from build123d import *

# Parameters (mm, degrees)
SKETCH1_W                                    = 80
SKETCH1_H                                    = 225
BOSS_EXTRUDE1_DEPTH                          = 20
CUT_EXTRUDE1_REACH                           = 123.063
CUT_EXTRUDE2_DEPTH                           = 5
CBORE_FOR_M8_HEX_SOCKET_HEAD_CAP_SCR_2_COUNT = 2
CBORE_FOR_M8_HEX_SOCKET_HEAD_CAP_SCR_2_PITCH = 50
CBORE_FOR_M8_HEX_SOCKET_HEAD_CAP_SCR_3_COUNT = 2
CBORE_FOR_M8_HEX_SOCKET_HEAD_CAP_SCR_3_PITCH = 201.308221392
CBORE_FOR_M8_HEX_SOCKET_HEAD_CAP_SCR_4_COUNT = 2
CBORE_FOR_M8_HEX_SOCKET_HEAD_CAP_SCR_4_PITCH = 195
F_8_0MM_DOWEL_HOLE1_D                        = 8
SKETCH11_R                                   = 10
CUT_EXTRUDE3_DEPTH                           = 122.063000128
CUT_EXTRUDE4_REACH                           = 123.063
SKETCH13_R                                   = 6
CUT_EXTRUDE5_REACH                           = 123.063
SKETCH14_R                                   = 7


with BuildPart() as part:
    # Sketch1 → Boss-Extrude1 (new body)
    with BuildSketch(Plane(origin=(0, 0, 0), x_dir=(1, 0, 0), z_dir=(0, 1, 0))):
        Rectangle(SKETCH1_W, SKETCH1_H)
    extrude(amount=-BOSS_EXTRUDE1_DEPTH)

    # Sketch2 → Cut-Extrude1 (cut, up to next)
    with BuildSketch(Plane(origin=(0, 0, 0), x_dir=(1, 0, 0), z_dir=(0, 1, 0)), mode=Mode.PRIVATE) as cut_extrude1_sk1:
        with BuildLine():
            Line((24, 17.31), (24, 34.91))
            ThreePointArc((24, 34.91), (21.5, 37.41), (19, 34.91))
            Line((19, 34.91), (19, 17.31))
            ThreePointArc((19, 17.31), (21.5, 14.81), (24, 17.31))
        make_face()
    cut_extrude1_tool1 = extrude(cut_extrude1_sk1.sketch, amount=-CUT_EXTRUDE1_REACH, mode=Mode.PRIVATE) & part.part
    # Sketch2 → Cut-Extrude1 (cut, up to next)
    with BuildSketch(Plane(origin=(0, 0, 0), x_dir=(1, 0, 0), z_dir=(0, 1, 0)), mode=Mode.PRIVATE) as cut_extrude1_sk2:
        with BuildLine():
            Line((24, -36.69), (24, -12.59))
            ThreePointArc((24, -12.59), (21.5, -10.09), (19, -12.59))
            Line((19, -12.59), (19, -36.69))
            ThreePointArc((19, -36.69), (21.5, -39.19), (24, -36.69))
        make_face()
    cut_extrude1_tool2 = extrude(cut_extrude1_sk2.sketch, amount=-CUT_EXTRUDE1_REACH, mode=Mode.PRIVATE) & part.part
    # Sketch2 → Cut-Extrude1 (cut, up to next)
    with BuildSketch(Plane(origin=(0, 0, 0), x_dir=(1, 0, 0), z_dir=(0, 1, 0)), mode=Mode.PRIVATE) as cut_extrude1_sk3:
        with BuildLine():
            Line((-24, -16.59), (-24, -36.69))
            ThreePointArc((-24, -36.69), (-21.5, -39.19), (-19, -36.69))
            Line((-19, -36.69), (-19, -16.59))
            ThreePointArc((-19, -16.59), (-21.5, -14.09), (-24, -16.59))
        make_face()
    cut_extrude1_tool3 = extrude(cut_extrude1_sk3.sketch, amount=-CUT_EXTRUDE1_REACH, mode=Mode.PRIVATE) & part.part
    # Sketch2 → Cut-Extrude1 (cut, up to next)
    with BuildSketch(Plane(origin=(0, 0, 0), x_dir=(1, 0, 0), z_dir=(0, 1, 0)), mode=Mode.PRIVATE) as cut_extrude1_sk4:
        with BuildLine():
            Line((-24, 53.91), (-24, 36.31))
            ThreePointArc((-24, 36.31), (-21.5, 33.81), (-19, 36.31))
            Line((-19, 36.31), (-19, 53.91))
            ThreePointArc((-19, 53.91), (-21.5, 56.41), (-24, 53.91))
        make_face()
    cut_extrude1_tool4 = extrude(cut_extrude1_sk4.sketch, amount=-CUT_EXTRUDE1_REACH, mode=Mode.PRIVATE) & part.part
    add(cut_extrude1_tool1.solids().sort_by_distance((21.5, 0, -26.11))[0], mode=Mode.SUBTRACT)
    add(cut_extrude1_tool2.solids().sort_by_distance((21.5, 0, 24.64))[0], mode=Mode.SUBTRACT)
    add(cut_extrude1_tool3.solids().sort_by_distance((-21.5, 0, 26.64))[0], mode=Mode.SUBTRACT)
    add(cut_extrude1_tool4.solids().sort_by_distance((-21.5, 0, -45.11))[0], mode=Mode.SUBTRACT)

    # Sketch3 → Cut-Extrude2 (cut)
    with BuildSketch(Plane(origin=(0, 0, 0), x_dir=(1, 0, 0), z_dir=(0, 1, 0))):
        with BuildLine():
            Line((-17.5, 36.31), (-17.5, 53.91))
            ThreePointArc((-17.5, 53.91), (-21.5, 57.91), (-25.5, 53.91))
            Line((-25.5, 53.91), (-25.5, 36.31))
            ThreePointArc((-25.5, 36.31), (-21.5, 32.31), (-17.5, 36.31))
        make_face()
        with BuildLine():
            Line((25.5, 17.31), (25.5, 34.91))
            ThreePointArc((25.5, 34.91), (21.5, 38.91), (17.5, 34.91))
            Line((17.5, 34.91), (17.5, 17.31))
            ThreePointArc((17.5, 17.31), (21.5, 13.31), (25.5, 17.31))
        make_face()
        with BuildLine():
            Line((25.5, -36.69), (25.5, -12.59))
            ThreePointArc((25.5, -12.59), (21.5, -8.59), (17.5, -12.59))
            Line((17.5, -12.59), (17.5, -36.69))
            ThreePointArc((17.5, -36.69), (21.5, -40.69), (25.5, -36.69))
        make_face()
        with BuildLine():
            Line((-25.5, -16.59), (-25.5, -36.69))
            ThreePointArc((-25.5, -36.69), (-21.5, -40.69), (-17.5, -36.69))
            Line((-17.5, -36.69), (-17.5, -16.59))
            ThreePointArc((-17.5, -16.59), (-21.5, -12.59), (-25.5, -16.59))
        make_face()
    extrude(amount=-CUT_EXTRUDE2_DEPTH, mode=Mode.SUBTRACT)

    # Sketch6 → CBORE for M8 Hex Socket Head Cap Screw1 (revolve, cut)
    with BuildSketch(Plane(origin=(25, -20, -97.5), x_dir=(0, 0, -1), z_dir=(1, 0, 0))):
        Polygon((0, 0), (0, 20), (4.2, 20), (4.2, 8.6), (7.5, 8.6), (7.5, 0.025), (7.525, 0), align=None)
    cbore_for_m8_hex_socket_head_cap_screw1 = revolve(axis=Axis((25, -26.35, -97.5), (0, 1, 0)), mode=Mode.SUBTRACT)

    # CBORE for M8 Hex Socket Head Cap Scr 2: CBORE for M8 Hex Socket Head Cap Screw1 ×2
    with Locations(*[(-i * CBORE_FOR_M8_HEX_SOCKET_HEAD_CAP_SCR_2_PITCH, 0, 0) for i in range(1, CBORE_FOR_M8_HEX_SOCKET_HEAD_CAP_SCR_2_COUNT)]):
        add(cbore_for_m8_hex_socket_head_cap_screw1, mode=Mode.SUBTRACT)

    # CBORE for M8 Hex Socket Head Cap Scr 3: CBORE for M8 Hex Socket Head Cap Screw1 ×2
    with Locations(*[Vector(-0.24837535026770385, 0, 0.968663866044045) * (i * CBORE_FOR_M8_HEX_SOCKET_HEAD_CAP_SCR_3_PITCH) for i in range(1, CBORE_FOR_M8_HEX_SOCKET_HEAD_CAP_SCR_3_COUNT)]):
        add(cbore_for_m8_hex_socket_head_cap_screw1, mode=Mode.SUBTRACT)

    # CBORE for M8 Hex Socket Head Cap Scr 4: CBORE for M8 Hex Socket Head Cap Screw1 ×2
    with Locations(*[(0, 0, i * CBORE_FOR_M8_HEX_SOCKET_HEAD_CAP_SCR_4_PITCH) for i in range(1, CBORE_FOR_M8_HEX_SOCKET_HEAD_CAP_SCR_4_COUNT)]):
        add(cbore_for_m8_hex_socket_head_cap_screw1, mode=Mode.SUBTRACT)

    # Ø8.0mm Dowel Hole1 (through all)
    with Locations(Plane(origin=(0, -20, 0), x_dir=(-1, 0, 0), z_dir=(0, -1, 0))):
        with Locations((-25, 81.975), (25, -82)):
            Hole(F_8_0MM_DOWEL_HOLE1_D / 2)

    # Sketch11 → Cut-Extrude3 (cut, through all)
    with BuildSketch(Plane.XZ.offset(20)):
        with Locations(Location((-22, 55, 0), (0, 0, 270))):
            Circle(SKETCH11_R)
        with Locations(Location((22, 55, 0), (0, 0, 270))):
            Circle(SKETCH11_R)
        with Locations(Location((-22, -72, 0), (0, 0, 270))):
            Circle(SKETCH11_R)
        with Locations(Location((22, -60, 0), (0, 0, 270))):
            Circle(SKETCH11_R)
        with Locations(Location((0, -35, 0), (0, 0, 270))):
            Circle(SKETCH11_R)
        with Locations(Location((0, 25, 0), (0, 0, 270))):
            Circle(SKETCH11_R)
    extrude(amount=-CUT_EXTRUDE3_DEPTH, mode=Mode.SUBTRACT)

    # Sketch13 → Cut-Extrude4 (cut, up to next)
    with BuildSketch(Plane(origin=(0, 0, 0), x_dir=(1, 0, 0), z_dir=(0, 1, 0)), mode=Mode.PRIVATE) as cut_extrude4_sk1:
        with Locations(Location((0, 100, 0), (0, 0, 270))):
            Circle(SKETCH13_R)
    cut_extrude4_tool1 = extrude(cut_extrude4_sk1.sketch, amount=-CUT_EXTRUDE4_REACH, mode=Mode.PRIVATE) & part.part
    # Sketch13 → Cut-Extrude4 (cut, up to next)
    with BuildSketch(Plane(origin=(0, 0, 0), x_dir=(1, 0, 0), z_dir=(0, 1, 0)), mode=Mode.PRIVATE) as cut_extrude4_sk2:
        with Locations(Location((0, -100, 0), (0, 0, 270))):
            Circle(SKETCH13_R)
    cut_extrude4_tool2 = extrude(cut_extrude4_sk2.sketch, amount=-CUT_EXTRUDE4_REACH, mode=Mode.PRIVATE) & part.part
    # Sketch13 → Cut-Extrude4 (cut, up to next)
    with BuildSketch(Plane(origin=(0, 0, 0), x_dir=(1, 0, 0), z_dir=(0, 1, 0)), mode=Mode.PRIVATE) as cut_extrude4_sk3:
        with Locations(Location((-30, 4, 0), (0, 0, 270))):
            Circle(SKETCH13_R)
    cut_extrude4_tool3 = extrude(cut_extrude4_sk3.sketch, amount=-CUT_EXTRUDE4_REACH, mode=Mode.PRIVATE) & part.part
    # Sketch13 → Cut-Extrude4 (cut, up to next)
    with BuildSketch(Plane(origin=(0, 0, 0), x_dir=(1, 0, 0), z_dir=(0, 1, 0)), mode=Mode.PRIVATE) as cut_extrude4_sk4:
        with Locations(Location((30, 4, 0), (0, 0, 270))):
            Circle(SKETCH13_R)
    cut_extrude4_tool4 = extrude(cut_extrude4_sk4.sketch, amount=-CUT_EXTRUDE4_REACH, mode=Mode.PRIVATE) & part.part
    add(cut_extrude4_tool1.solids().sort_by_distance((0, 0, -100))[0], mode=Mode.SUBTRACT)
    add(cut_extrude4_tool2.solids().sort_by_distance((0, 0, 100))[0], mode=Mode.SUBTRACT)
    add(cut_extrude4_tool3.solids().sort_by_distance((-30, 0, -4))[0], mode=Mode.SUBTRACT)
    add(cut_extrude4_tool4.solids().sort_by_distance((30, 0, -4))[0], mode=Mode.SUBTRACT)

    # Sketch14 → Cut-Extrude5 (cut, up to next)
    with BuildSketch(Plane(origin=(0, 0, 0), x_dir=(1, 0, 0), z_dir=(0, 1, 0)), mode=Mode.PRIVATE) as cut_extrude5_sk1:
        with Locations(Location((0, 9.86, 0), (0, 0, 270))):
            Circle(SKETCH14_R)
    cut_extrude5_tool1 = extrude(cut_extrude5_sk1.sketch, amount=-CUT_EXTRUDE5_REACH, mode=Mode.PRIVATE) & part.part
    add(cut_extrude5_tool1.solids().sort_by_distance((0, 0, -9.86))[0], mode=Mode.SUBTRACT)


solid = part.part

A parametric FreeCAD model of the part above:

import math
import FreeCAD as App
import Part
import Sketcher
Q = App.Units.Quantity

doc = App.newDocument("Part")
body = doc.addObject("PartDesign::Body", "Body")

# Sketch on XZ plane
sketch1 = doc.addObject("Sketcher::SketchObject", "Sketch")
body.addObject(sketch1)
sketch1.AttachmentSupport = (doc.XZ_Plane, [""])
sketch1.MapMode = "FlatFace"
sketch1.addGeometry([
    Part.LineSegment(App.Vector(-40, -112.5, 0), App.Vector(-40, 112.5, 0)),
    Part.LineSegment(App.Vector(-40, 112.5, 0), App.Vector(40, 112.5, 0)),
    Part.LineSegment(App.Vector(40, 112.5, 0), App.Vector(40, -112.5, 0)),
    Part.LineSegment(App.Vector(40, -112.5, 0), App.Vector(-40, -112.5, 0)),
], False)
sketch1.addConstraint([
    Sketcher.Constraint("Coincident", 0, 2, 1, 1),
    Sketcher.Constraint("Coincident", 1, 2, 2, 1),
    Sketcher.Constraint("Coincident", 2, 2, 3, 1),
    Sketcher.Constraint("Coincident", 3, 2, 0, 1),
    Sketcher.Constraint("Vertical", 0),
    Sketcher.Constraint("Horizontal", 1),
    Sketcher.Constraint("Vertical", 2),
    Sketcher.Constraint("Horizontal", 3),
    Sketcher.Constraint("Symmetric", 0, 2, 2, 2, -1, 1),
    Sketcher.Constraint("DistanceX", 1, 1, 1, 2, Q("80 mm")),
    Sketcher.Constraint("DistanceY", 0, 1, 0, 2, Q("225 mm")),
])
pad1 = doc.addObject("PartDesign::Pad", "Pad")
body.addObject(pad1)
pad1.Profile = sketch1
pad1.Length = 20

# Sketch on XZ plane
sketch2 = doc.addObject("Sketcher::SketchObject", "Sketch001")
body.addObject(sketch2)
sketch2.AttachmentSupport = (doc.XZ_Plane, [""])
sketch2.MapMode = "FlatFace"
sketch2.addGeometry([
    Part.LineSegment(App.Vector(24, -17.31, 0), App.Vector(24, -34.91, 0)),
    Part.ArcOfCircle(Part.Circle(App.Vector(21.5, -34.91, 0), App.Vector(0, 0, 1), 2.5), math.radians(180), math.radians(360)),
    Part.LineSegment(App.Vector(19, -34.91, 0), App.Vector(19, -17.31, 0)),
    Part.ArcOfCircle(Part.Circle(App.Vector(21.5, -17.31, 0), App.Vector(0, 0, 1), 2.5), math.radians(0), math.radians(180)),
], False)
sketch2.addConstraint([
    Sketcher.Constraint("Tangent", 0, 2, 1, 2),
    Sketcher.Constraint("Tangent", 1, 1, 2, 1),
    Sketcher.Constraint("Tangent", 2, 2, 3, 2),
    Sketcher.Constraint("Tangent", 3, 1, 0, 1),
    Sketcher.Constraint("Vertical", 0),
    Sketcher.Constraint("Vertical", 2),
    Sketcher.Constraint("Radius", 1, Q("2.5 mm")),
    Sketcher.Constraint("DistanceY", 0, 2, 0, 1, Q("17.6 mm")),
    Sketcher.Constraint("DistanceX", -1, 1, 0, 2, Q("24 mm")),
    Sketcher.Constraint("DistanceY", 1, 3, -1, 1, Q("34.91 mm")),
])
pocket1 = doc.addObject("PartDesign::Pocket", "Pocket")
body.addObject(pocket1)
pocket1.Profile = sketch2
pocket1.Type = "UpToFirst"
pocket1.Reversed = True

# Sketch on XZ plane
sketch3 = doc.addObject("Sketcher::SketchObject", "Sketch002")
body.addObject(sketch3)
sketch3.AttachmentSupport = (doc.XZ_Plane, [""])
sketch3.MapMode = "FlatFace"
sketch3.addGeometry([
    Part.LineSegment(App.Vector(24, 36.69, 0), App.Vector(24, 12.59, 0)),
    Part.ArcOfCircle(Part.Circle(App.Vector(21.5, 12.59, 0), App.Vector(0, 0, 1), 2.5), math.radians(180), math.radians(360)),
    Part.LineSegment(App.Vector(19, 12.59, 0), App.Vector(19, 36.69, 0)),
    Part.ArcOfCircle(Part.Circle(App.Vector(21.5, 36.69, 0), App.Vector(0, 0, 1), 2.5), math.radians(0), math.radians(180)),
], False)
sketch3.addConstraint([
    Sketcher.Constraint("Tangent", 0, 2, 1, 2),
    Sketcher.Constraint("Tangent", 1, 1, 2, 1),
    Sketcher.Constraint("Tangent", 2, 2, 3, 2),
    Sketcher.Constraint("Tangent", 3, 1, 0, 1),
    Sketcher.Constraint("Vertical", 0),
    Sketcher.Constraint("Vertical", 2),
    Sketcher.Constraint("Radius", 1, Q("2.5 mm")),
    Sketcher.Constraint("DistanceY", 0, 2, 0, 1, Q("24.1 mm")),
    Sketcher.Constraint("DistanceX", -1, 1, 0, 2, Q("24 mm")),
    Sketcher.Constraint("DistanceY", -1, 1, 1, 3, Q("12.59 mm")),
])
pocket2 = doc.addObject("PartDesign::Pocket", "Pocket001")
body.addObject(pocket2)
pocket2.Profile = sketch3
pocket2.Type = "UpToFirst"
pocket2.Reversed = True

# Sketch on XZ plane
sketch4 = doc.addObject("Sketcher::SketchObject", "Sketch003")
body.addObject(sketch4)
sketch4.AttachmentSupport = (doc.XZ_Plane, [""])
sketch4.MapMode = "FlatFace"
sketch4.addGeometry([
    Part.LineSegment(App.Vector(-24, 16.59, 0), App.Vector(-24, 36.69, 0)),
    Part.ArcOfCircle(Part.Circle(App.Vector(-21.5, 36.69, 0), App.Vector(0, 0, 1), 2.5), math.radians(0), math.radians(180)),
    Part.LineSegment(App.Vector(-19, 36.69, 0), App.Vector(-19, 16.59, 0)),
    Part.ArcOfCircle(Part.Circle(App.Vector(-21.5, 16.59, 0), App.Vector(0, 0, 1), 2.5), math.radians(180), math.radians(360)),
], False)
sketch4.addConstraint([
    Sketcher.Constraint("Tangent", 0, 2, 1, 2),
    Sketcher.Constraint("Tangent", 1, 1, 2, 1),
    Sketcher.Constraint("Tangent", 2, 2, 3, 2),
    Sketcher.Constraint("Tangent", 3, 1, 0, 1),
    Sketcher.Constraint("Vertical", 0),
    Sketcher.Constraint("Vertical", 2),
    Sketcher.Constraint("Radius", 1, Q("2.5 mm")),
    Sketcher.Constraint("DistanceY", 0, 1, 0, 2, Q("20.1 mm")),
    Sketcher.Constraint("DistanceX", 0, 2, -1, 1, Q("24 mm")),
    Sketcher.Constraint("DistanceY", -1, 1, 1, 3, Q("36.69 mm")),
])
pocket3 = doc.addObject("PartDesign::Pocket", "Pocket002")
body.addObject(pocket3)
pocket3.Profile = sketch4
pocket3.Type = "UpToFirst"
pocket3.Reversed = True

# Sketch on XZ plane
sketch5 = doc.addObject("Sketcher::SketchObject", "Sketch004")
body.addObject(sketch5)
sketch5.AttachmentSupport = (doc.XZ_Plane, [""])
sketch5.MapMode = "FlatFace"
sketch5.addGeometry([
    Part.LineSegment(App.Vector(-24, -53.91, 0), App.Vector(-24, -36.31, 0)),
    Part.ArcOfCircle(Part.Circle(App.Vector(-21.5, -36.31, 0), App.Vector(0, 0, 1), 2.5), math.radians(0), math.radians(180)),
    Part.LineSegment(App.Vector(-19, -36.31, 0), App.Vector(-19, -53.91, 0)),
    Part.ArcOfCircle(Part.Circle(App.Vector(-21.5, -53.91, 0), App.Vector(0, 0, 1), 2.5), math.radians(180), math.radians(360)),
], False)
sketch5.addConstraint([
    Sketcher.Constraint("Tangent", 0, 2, 1, 2),
    Sketcher.Constraint("Tangent", 1, 1, 2, 1),
    Sketcher.Constraint("Tangent", 2, 2, 3, 2),
    Sketcher.Constraint("Tangent", 3, 1, 0, 1),
    Sketcher.Constraint("Vertical", 0),
    Sketcher.Constraint("Vertical", 2),
    Sketcher.Constraint("Radius", 1, Q("2.5 mm")),
    Sketcher.Constraint("DistanceY", 0, 1, 0, 2, Q("17.6 mm")),
    Sketcher.Constraint("DistanceX", 0, 2, -1, 1, Q("24 mm")),
    Sketcher.Constraint("DistanceY", 1, 3, -1, 1, Q("36.31 mm")),
])
pocket4 = doc.addObject("PartDesign::Pocket", "Pocket003")
body.addObject(pocket4)
pocket4.Profile = sketch5
pocket4.Type = "UpToFirst"
pocket4.Reversed = True

# Sketch on XZ plane
sketch6 = doc.addObject("Sketcher::SketchObject", "Sketch005")
body.addObject(sketch6)
sketch6.AttachmentSupport = (doc.XZ_Plane, [""])
sketch6.MapMode = "FlatFace"
sketch6.addGeometry([
    Part.LineSegment(App.Vector(-17.5, -36.31, 0), App.Vector(-17.5, -53.91, 0)),  # 0
    Part.ArcOfCircle(Part.Circle(App.Vector(-21.5, -53.91, 0), App.Vector(0, 0, 1), 4), math.radians(180), math.radians(360)),  # 1
    Part.LineSegment(App.Vector(-25.5, -53.91, 0), App.Vector(-25.5, -36.31, 0)),  # 2
    Part.ArcOfCircle(Part.Circle(App.Vector(-21.5, -36.31, 0), App.Vector(0, 0, 1), 4), math.radians(0), math.radians(180)),  # 3
    Part.LineSegment(App.Vector(25.5, -17.31, 0), App.Vector(25.5, -34.91, 0)),  # 4
    Part.ArcOfCircle(Part.Circle(App.Vector(21.5, -34.91, 0), App.Vector(0, 0, 1), 4), math.radians(180), math.radians(360)),  # 5
    Part.LineSegment(App.Vector(17.5, -34.91, 0), App.Vector(17.5, -17.31, 0)),  # 6
    Part.ArcOfCircle(Part.Circle(App.Vector(21.5, -17.31, 0), App.Vector(0, 0, 1), 4), math.radians(0), math.radians(180)),  # 7
    Part.LineSegment(App.Vector(25.5, 36.69, 0), App.Vector(25.5, 12.59, 0)),  # 8
    Part.ArcOfCircle(Part.Circle(App.Vector(21.5, 12.59, 0), App.Vector(0, 0, 1), 4), math.radians(180), math.radians(360)),  # 9
    Part.LineSegment(App.Vector(17.5, 12.59, 0), App.Vector(17.5, 36.69, 0)),  # 10
    Part.ArcOfCircle(Part.Circle(App.Vector(21.5, 36.69, 0), App.Vector(0, 0, 1), 4), math.radians(0), math.radians(180)),  # 11
    Part.LineSegment(App.Vector(-25.5, 16.59, 0), App.Vector(-25.5, 36.69, 0)),  # 12
    Part.ArcOfCircle(Part.Circle(App.Vector(-21.5, 36.69, 0), App.Vector(0, 0, 1), 4), math.radians(0), math.radians(180)),  # 13
    Part.LineSegment(App.Vector(-17.5, 36.69, 0), App.Vector(-17.5, 16.59, 0)),  # 14
    Part.ArcOfCircle(Part.Circle(App.Vector(-21.5, 16.59, 0), App.Vector(0, 0, 1), 4), math.radians(180), math.radians(360)),  # 15
], False)
sketch6.addConstraint([
    Sketcher.Constraint("Tangent", 0, 2, 1, 2),
    Sketcher.Constraint("Tangent", 1, 1, 2, 1),
    Sketcher.Constraint("Tangent", 2, 2, 3, 2),
    Sketcher.Constraint("Tangent", 3, 1, 0, 1),
    Sketcher.Constraint("Tangent", 4, 2, 5, 2),
    Sketcher.Constraint("Tangent", 5, 1, 6, 1),
    Sketcher.Constraint("Tangent", 6, 2, 7, 2),
    Sketcher.Constraint("Tangent", 7, 1, 4, 1),
    Sketcher.Constraint("Tangent", 8, 2, 9, 2),
    Sketcher.Constraint("Tangent", 9, 1, 10, 1),
    Sketcher.Constraint("Tangent", 10, 2, 11, 2),
    Sketcher.Constraint("Tangent", 11, 1, 8, 1),
    Sketcher.Constraint("Tangent", 12, 2, 13, 2),
    Sketcher.Constraint("Tangent", 13, 1, 14, 1),
    Sketcher.Constraint("Tangent", 14, 2, 15, 2),
    Sketcher.Constraint("Tangent", 15, 1, 12, 1),
    Sketcher.Constraint("Vertical", 0),
    Sketcher.Constraint("Vertical", 2),
    Sketcher.Constraint("Vertical", 4),
    Sketcher.Constraint("Vertical", 6),
    Sketcher.Constraint("Vertical", 8),
    Sketcher.Constraint("Vertical", 10),
    Sketcher.Constraint("Vertical", 12),
    Sketcher.Constraint("Vertical", 14),
    Sketcher.Constraint("Equal", 3, 5),
    Sketcher.Constraint("Equal", 7, 9),
    Sketcher.Constraint("Equal", 11, 13),
    Sketcher.Constraint("Symmetric", 11, 3, 13, 3, -2),
    Sketcher.Constraint("Vertical", 7, 3, 9, 3),
    Sketcher.Constraint("Vertical", 3, 3, 13, 3),
    Sketcher.Constraint("Equal", 2, 4),
    Sketcher.Constraint("Radius", 1, Q("4 mm")),
    Sketcher.Constraint("DistanceY", 0, 2, 0, 1, Q("17.6 mm")),
    Sketcher.Constraint("DistanceY", 8, 2, 8, 1, Q("24.1 mm")),
    Sketcher.Constraint("DistanceY", 12, 1, 12, 2, Q("20.1 mm")),
    Sketcher.Constraint("DistanceX", 3, 3, 5, 3, Q("43 mm")),
    Sketcher.Constraint("DistanceY", 1, 3, 5, 3, Q("19 mm")),
    Sketcher.Constraint("DistanceY", 7, 3, 11, 3, Q("54 mm")),
    Sketcher.Constraint("DistanceY", 1, 3, -1, 1, Q("53.91 mm")),
])
pocket5 = doc.addObject("PartDesign::Pocket", "Pocket004")
body.addObject(pocket5)
pocket5.Profile = sketch6
pocket5.Length = 5
pocket5.Reversed = True

# Sketch on YZ plane
sketch7 = doc.addObject("Sketcher::SketchObject", "Sketch006")
body.addObject(sketch7)
sketch7.AttachmentSupport = (doc.YZ_Plane, [""])
sketch7.MapMode = "FlatFace"
sketch7.AttachmentOffset = App.Placement(App.Vector(0, 0, 25), App.Rotation())
sketch7.addGeometry([
    Part.LineSegment(App.Vector(0, -97.5, 0), App.Vector(-20, -97.5, 0)),  # 0
    Part.LineSegment(App.Vector(-20, -97.5, 0), App.Vector(-20, -105.025, 0)),  # 1
    Part.LineSegment(App.Vector(-20, -105.025, 0), App.Vector(-19.975, -105, 0)),  # 2
    Part.LineSegment(App.Vector(-19.975, -105, 0), App.Vector(-11.4, -105, 0)),  # 3
    Part.LineSegment(App.Vector(-11.4, -105, 0), App.Vector(-11.4, -101.7, 0)),  # 4
    Part.LineSegment(App.Vector(-11.4, -101.7, 0), App.Vector(0, -101.7, 0)),  # 5
    Part.LineSegment(App.Vector(0, -101.7, 0), App.Vector(0, -97.5, 0)),  # 6
], False)
sketch7.addGeometry(Part.LineSegment(App.Vector(-20, -97.5, 0), App.Vector(0, -97.5, 0)), True)  # axis
sketch7.addConstraint([
    Sketcher.Constraint("Coincident", 0, 2, 1, 1),
    Sketcher.Constraint("Coincident", 1, 2, 2, 1),
    Sketcher.Constraint("Coincident", 2, 2, 3, 1),
    Sketcher.Constraint("Coincident", 3, 2, 4, 1),
    Sketcher.Constraint("Coincident", 4, 2, 5, 1),
    Sketcher.Constraint("Coincident", 5, 2, 6, 1),
    Sketcher.Constraint("Coincident", 6, 2, 0, 1),
    Sketcher.Constraint("Horizontal", 0),
    Sketcher.Constraint("Vertical", 1),
    Sketcher.Constraint("Horizontal", 3),
    Sketcher.Constraint("Vertical", 4),
    Sketcher.Constraint("Horizontal", 5),
    Sketcher.Constraint("Vertical", 6),
    Sketcher.Constraint("Horizontal", 7),
    Sketcher.Constraint("Coincident", 7, 1, 0, 2),
    Sketcher.Constraint("PointOnObject", 5, 2, -2),
    Sketcher.Constraint("PointOnObject", 7, 2, -2),
    Sketcher.Constraint("DistanceX", 0, 2, 0, 1, Q("20 mm")),
    Sketcher.Constraint("Angle", 2, Q("45 deg")),
    Sketcher.Constraint("DistanceX", 5, 1, 5, 2, Q("11.4 mm")),
    Sketcher.Constraint("DistanceY", 4, 1, 4, 2, Q("3.3 mm")),
    Sketcher.Constraint("DistanceY", 6, 1, 6, 2, Q("4.2 mm")),
    Sketcher.Constraint("DistanceY", 2, 2, -1, 1, Q("105 mm")),
    Sketcher.Constraint("DistanceX", 3, 1, 3, 2, Q("8.575 mm")),
])
groove = doc.addObject("PartDesign::Groove", "Groove")
body.addObject(groove)
groove.Profile = sketch7
groove.ReferenceAxis = (sketch7, ["Axis0"])
groove.Angle = 360
doc.recompute()

linearpattern = doc.addObject("PartDesign::LinearPattern", "LinearPattern")
body.addObject(linearpattern)
linearpattern.Originals = [groove]
linearpattern.Direction = (doc.X_Axis, [""])
linearpattern.Mode = "offset"
linearpattern.Offset = 50
linearpattern.Occurrences = 2
linearpattern.Reversed = True
body.Tip = linearpattern
doc.recompute()

datumline = doc.addObject("PartDesign::Line", "DatumLine")
body.addObject(datumline)
datumline.Placement = App.Placement(App.Vector(0, 0, 0), App.Rotation(App.Vector(0, 0, 1), App.Vector(-0.24837535, 0, 0.968663866)))
linearpattern2 = doc.addObject("PartDesign::LinearPattern", "LinearPattern001")
body.addObject(linearpattern2)
linearpattern2.Originals = [groove]
linearpattern2.Direction = (datumline, [""])
linearpattern2.Mode = "offset"
linearpattern2.Offset = 201.308221
linearpattern2.Occurrences = 2
body.Tip = linearpattern2
doc.recompute()

linearpattern3 = doc.addObject("PartDesign::LinearPattern", "LinearPattern002")
body.addObject(linearpattern3)
linearpattern3.Originals = [groove]
linearpattern3.Direction = (doc.Z_Axis, [""])
linearpattern3.Mode = "offset"
linearpattern3.Offset = 195
linearpattern3.Occurrences = 2
body.Tip = linearpattern3

# Sketch on XZ plane
sketch8 = doc.addObject("Sketcher::SketchObject", "Sketch007")
body.addObject(sketch8)
sketch8.AttachmentSupport = (doc.XZ_Plane, [""])
sketch8.MapMode = "FlatFace"
sketch8.AttachmentOffset = App.Placement(App.Vector(0, 0, 20), App.Rotation())
sketch8.addGeometry([
    Part.Circle(App.Vector(25, -81.975, 0), App.Vector(0, 0, 1), 4),
    Part.Circle(App.Vector(-25, 82, 0), App.Vector(0, 0, 1), 4),
], False)
sketch8.addConstraint([
    Sketcher.Constraint("Equal", 0, 1),
    Sketcher.Constraint("Diameter", 0, Q("8 mm")),
    Sketcher.Constraint("DistanceX", -1, 1, 0, 3, Q("25 mm")),
    Sketcher.Constraint("DistanceX", 1, 3, -1, 1, Q("25 mm")),
    Sketcher.Constraint("DistanceY", -1, 1, 1, 3, Q("82 mm")),
    Sketcher.Constraint("DistanceY", 0, 3, -1, 1, Q("81.975 mm")),
])
doc.recompute()
hole = doc.addObject("PartDesign::Hole", "Hole")
body.addObject(hole)
hole.Profile = sketch8
hole.ThreadType = "None"
hole.Diameter = 8
hole.DepthType = "ThroughAll"

# Sketch on XZ plane
sketch9 = doc.addObject("Sketcher::SketchObject", "Sketch008")
body.addObject(sketch9)
sketch9.AttachmentSupport = (doc.XZ_Plane, [""])
sketch9.MapMode = "FlatFace"
sketch9.AttachmentOffset = App.Placement(App.Vector(0, 0, 20), App.Rotation())
sketch9.addGeometry([
    Part.Circle(App.Vector(-22, 55, 0), App.Vector(0, 0, 1), 10),  # 0
    Part.Circle(App.Vector(22, 55, 0), App.Vector(0, 0, 1), 10),  # 1
    Part.Circle(App.Vector(-22, -72, 0), App.Vector(0, 0, 1), 10),  # 2
    Part.Circle(App.Vector(22, -60, 0), App.Vector(0, 0, 1), 10),  # 3
    Part.Circle(App.Vector(0, -35, 0), App.Vector(0, 0, 1), 10),  # 4
    Part.Circle(App.Vector(0, 25, 0), App.Vector(0, 0, 1), 10),  # 5
], False)
sketch9.addConstraint([
    Sketcher.Constraint("Equal", 0, 1),
    Sketcher.Constraint("Equal", 1, 2),
    Sketcher.Constraint("Equal", 2, 3),
    Sketcher.Constraint("Equal", 3, 4),
    Sketcher.Constraint("Equal", 4, 5),
    Sketcher.Constraint("Symmetric", 0, 3, 1, 3, -2),
    Sketcher.Constraint("PointOnObject", 4, 3, -2),
    Sketcher.Constraint("PointOnObject", 5, 3, -2),
    Sketcher.Constraint("Vertical", 0, 3, 2, 3),
    Sketcher.Constraint("Vertical", 1, 3, 3, 3),
    Sketcher.Constraint("Diameter", 0, Q("20 mm")),
    Sketcher.Constraint("DistanceX", 0, 3, -1, 1, Q("22 mm")),
    Sketcher.Constraint("DistanceY", -1, 1, 0, 3, Q("55 mm")),
    Sketcher.Constraint("DistanceY", 2, 3, -1, 1, Q("72 mm")),
    Sketcher.Constraint("DistanceY", 3, 3, -1, 1, Q("60 mm")),
    Sketcher.Constraint("DistanceY", 4, 3, -1, 1, Q("35 mm")),
    Sketcher.Constraint("DistanceY", -1, 1, 5, 3, Q("25 mm")),
])
pocket6 = doc.addObject("PartDesign::Pocket", "Pocket005")
body.addObject(pocket6)
pocket6.Profile = sketch9
pocket6.Type = "ThroughAll"

# Sketch on XZ plane
sketch10 = doc.addObject("Sketcher::SketchObject", "Sketch009")
body.addObject(sketch10)
sketch10.AttachmentSupport = (doc.XZ_Plane, [""])
sketch10.MapMode = "FlatFace"
sketch10.addGeometry(Part.Circle(App.Vector(0, -100, 0), App.Vector(0, 0, 1), 6), False)
sketch10.addConstraint([
    Sketcher.Constraint("PointOnObject", 0, 3, -2),
    Sketcher.Constraint("Diameter", 0, Q("12 mm")),
    Sketcher.Constraint("DistanceY", 0, 3, -1, 1, Q("100 mm")),
])
pocket7 = doc.addObject("PartDesign::Pocket", "Pocket006")
body.addObject(pocket7)
pocket7.Profile = sketch10
pocket7.Type = "UpToFirst"
pocket7.Reversed = True

# Sketch on XZ plane
sketch11 = doc.addObject("Sketcher::SketchObject", "Sketch010")
body.addObject(sketch11)
sketch11.AttachmentSupport = (doc.XZ_Plane, [""])
sketch11.MapMode = "FlatFace"
sketch11.addGeometry(Part.Circle(App.Vector(0, 100, 0), App.Vector(0, 0, 1), 6), False)
sketch11.addConstraint([
    Sketcher.Constraint("PointOnObject", 0, 3, -2),
    Sketcher.Constraint("Diameter", 0, Q("12 mm")),
    Sketcher.Constraint("DistanceY", -1, 1, 0, 3, Q("100 mm")),
])
pocket8 = doc.addObject("PartDesign::Pocket", "Pocket007")
body.addObject(pocket8)
pocket8.Profile = sketch11
pocket8.Type = "UpToFirst"
pocket8.Reversed = True

# Sketch on XZ plane
sketch12 = doc.addObject("Sketcher::SketchObject", "Sketch011")
body.addObject(sketch12)
sketch12.AttachmentSupport = (doc.XZ_Plane, [""])
sketch12.MapMode = "FlatFace"
sketch12.addGeometry(Part.Circle(App.Vector(-30, -4, 0), App.Vector(0, 0, 1), 6), False)
sketch12.addConstraint([
    Sketcher.Constraint("Diameter", 0, Q("12 mm")),
    Sketcher.Constraint("DistanceX", 0, 3, -1, 1, Q("30 mm")),
    Sketcher.Constraint("DistanceY", 0, 3, -1, 1, Q("4 mm")),
])
pocket9 = doc.addObject("PartDesign::Pocket", "Pocket008")
body.addObject(pocket9)
pocket9.Profile = sketch12
pocket9.Type = "UpToFirst"
pocket9.Reversed = True

# Sketch on XZ plane
sketch13 = doc.addObject("Sketcher::SketchObject", "Sketch012")
body.addObject(sketch13)
sketch13.AttachmentSupport = (doc.XZ_Plane, [""])
sketch13.MapMode = "FlatFace"
sketch13.addGeometry(Part.Circle(App.Vector(30, -4, 0), App.Vector(0, 0, 1), 6), False)
sketch13.addConstraint([
    Sketcher.Constraint("Diameter", 0, Q("12 mm")),
    Sketcher.Constraint("DistanceX", -1, 1, 0, 3, Q("30 mm")),
    Sketcher.Constraint("DistanceY", 0, 3, -1, 1, Q("4 mm")),
])
pocket10 = doc.addObject("PartDesign::Pocket", "Pocket009")
body.addObject(pocket10)
pocket10.Profile = sketch13
pocket10.Type = "UpToFirst"
pocket10.Reversed = True

# Sketch on XZ plane
sketch14 = doc.addObject("Sketcher::SketchObject", "Sketch013")
body.addObject(sketch14)
sketch14.AttachmentSupport = (doc.XZ_Plane, [""])
sketch14.MapMode = "FlatFace"
sketch14.addGeometry(Part.Circle(App.Vector(0, -9.86, 0), App.Vector(0, 0, 1), 7), False)
sketch14.addConstraint([
    Sketcher.Constraint("PointOnObject", 0, 3, -2),
    Sketcher.Constraint("Diameter", 0, Q("14 mm")),
    Sketcher.Constraint("DistanceY", 0, 3, -1, 1, Q("9.86 mm")),
])
pocket11 = doc.addObject("PartDesign::Pocket", "Pocket010")
body.addObject(pocket11)
pocket11.Profile = sketch14
pocket11.Type = "UpToFirst"
pocket11.Reversed = True

doc.recompute()
